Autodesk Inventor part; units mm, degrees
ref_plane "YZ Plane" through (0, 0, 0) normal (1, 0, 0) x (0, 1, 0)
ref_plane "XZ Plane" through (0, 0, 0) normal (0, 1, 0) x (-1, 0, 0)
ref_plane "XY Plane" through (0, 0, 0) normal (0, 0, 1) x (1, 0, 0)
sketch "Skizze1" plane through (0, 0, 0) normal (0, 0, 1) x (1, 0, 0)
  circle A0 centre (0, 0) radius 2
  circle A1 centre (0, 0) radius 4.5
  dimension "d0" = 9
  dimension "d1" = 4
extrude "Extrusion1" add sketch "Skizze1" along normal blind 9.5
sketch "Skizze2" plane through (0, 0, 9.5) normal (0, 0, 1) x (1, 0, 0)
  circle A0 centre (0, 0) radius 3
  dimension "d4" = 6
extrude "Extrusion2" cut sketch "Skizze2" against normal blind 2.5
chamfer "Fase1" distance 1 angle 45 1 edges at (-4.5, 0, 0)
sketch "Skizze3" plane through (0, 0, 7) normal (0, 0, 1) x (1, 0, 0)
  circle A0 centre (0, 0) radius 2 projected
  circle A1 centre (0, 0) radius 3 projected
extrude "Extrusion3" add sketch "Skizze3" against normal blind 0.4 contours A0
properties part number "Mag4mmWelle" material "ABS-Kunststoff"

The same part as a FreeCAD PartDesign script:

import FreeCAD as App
import Part
import Sketcher


def edges_at(feature, points):
    """Names of the edges that pass closest to the given points."""
    edges = feature.Shape.Edges
    near = lambda p: min(range(len(edges)), key=lambda i: edges[i].distToShape(Part.Vertex(*p))[0])
    return sorted({f"Edge{near(p) + 1}" for p in points})

doc = App.newDocument("Part")
body = doc.addObject("PartDesign::Body", "Body")

# Sketch on XY plane
sketch1 = body.newObject("Sketcher::SketchObject", "Sketch")
sketch1.AttachmentSupport = (doc.getObject("XY_Plane"), [""])
sketch1.MapMode = "FlatFace"
sketch1.addGeometry(Part.Circle(App.Vector(0, 0, 0), App.Vector(0, 0, 1), 4.5), False)
sketch1.addGeometry(Part.Circle(App.Vector(0, 0, 0), App.Vector(0, 0, 1), 2), False)
sketch1.addConstraint(Sketcher.Constraint("Coincident", 0, 3, -1, 1))
sketch1.addConstraint(Sketcher.Constraint("Coincident", 1, 3, -1, 1))
sketch1.addConstraint(Sketcher.Constraint("Diameter", 0, 9.0))
sketch1.addConstraint(Sketcher.Constraint("Diameter", 1, 4.0))
pad1 = body.newObject("PartDesign::Pad", "Pad")
pad1.Profile = sketch1
pad1.Length = 9.5

# Sketch on XY plane
sketch2 = body.newObject("Sketcher::SketchObject", "Sketch001")
sketch2.AttachmentSupport = (doc.getObject("XY_Plane"), [""])
sketch2.MapMode = "FlatFace"
sketch2.AttachmentOffset = App.Placement(App.Vector(0, 0, 9.5), App.Rotation())
sketch2.addGeometry(Part.Circle(App.Vector(0, 0, 0), App.Vector(0, 0, 1), 3), False)
sketch2.addConstraint(Sketcher.Constraint("Coincident", 0, 3, -1, 1))
sketch2.addConstraint(Sketcher.Constraint("Diameter", 0, 6.0))
pocket1 = body.newObject("PartDesign::Pocket", "Pocket")
pocket1.Profile = sketch2
pocket1.Length = 2.5
doc.recompute()

chamfer = body.newObject("PartDesign::Chamfer", "Chamfer")
chamfer.Base = (pocket1, edges_at(pocket1, [(-4.5, 0, 0)]))
chamfer.Size = 1

# Sketch on XY plane
sketch3 = body.newObject("Sketcher::SketchObject", "Sketch002")
sketch3.AttachmentSupport = (doc.getObject("XY_Plane"), [""])
sketch3.MapMode = "FlatFace"
sketch3.AttachmentOffset = App.Placement(App.Vector(0, 0, 7), App.Rotation())
sketch3.addGeometry(Part.Circle(App.Vector(0, 0, 0), App.Vector(0, 0, 1), 2), False)
sketch3.addConstraint(Sketcher.Constraint("Coincident", 0, 3, -1, 1))
sketch3.addConstraint(Sketcher.Constraint("Diameter", 0, 4.0))
pad2 = body.newObject("PartDesign::Pad", "Pad001")
pad2.Profile = sketch3
pad2.Length = 0.4
pad2.Reversed = True

doc.recompute()
